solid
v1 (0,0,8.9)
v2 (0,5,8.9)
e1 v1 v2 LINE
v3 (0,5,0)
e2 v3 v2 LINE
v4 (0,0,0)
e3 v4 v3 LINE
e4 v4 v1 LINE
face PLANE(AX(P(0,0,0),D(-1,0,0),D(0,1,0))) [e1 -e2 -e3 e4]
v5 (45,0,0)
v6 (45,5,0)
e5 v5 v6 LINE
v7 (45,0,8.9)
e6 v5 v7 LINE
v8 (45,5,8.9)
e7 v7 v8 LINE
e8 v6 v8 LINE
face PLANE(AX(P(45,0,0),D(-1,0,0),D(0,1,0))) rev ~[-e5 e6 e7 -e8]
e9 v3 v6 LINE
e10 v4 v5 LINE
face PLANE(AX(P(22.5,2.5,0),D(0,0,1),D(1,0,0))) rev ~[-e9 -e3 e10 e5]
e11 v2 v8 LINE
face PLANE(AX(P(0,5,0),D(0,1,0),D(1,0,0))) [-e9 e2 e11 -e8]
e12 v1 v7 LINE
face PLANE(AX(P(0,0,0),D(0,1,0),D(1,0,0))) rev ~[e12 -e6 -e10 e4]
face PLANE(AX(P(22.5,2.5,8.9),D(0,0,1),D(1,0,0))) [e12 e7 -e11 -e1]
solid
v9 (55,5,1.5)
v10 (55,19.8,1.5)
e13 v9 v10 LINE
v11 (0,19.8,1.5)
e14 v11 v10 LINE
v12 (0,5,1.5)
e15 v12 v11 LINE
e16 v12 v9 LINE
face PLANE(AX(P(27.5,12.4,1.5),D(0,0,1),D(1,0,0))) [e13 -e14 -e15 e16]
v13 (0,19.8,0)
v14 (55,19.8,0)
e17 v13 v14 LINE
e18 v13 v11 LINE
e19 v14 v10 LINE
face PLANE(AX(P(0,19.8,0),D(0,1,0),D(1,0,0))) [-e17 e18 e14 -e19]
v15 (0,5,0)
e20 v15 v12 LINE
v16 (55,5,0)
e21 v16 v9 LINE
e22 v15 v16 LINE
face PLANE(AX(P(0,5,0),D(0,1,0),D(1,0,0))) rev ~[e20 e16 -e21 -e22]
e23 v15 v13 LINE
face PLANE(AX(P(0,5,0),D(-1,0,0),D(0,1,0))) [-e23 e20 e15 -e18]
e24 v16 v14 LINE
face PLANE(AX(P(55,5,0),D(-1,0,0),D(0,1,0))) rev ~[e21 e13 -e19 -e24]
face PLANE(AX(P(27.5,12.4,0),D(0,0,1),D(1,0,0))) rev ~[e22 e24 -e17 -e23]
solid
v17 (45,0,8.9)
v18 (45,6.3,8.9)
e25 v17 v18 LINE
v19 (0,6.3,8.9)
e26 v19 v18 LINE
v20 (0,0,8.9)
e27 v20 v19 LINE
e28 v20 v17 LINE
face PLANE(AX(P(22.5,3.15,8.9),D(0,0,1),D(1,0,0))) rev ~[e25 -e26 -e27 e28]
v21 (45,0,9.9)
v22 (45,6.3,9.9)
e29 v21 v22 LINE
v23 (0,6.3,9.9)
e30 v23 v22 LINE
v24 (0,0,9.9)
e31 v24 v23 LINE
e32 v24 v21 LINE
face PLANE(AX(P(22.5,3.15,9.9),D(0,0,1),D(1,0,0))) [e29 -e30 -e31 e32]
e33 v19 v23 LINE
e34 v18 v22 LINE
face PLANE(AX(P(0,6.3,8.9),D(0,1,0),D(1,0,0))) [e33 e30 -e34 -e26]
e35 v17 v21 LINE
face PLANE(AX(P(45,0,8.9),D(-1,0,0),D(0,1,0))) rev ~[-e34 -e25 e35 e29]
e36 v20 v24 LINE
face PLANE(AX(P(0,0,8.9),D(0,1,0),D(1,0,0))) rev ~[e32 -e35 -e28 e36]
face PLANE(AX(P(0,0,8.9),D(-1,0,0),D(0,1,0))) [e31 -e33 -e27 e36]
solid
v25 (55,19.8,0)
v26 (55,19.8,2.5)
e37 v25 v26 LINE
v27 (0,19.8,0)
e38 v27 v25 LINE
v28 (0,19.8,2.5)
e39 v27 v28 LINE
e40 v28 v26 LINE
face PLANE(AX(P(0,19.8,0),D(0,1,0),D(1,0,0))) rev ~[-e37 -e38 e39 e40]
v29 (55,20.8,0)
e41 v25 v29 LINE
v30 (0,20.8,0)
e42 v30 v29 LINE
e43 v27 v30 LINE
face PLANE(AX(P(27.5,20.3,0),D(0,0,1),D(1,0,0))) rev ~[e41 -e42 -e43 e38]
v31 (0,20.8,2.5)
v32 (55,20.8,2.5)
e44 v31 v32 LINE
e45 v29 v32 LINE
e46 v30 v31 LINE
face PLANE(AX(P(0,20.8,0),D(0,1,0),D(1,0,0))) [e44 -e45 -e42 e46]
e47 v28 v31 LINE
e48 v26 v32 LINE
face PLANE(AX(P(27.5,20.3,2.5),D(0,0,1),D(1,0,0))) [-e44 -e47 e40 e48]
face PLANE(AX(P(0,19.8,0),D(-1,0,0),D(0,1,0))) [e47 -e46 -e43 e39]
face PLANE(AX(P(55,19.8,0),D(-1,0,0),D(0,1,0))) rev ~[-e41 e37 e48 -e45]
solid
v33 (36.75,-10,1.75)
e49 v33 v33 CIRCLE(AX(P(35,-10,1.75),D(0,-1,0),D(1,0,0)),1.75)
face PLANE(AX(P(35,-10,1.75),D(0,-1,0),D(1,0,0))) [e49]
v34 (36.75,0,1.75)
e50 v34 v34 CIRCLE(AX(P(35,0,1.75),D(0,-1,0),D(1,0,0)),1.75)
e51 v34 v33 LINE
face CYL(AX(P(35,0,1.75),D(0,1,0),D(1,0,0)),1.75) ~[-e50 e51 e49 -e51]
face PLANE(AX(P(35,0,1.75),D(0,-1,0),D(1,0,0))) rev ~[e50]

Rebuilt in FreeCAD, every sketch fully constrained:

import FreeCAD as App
import Part
import Sketcher
Q = App.Units.Quantity


def add_polygon(sketch, points):
    """Adds a closed chain of lines whose ends are joined by coincident constraints."""
    first, n = sketch.GeometryCount, len(points)
    for a, b in zip(points, points[1:] + points[:1]):
        sketch.addGeometry(Part.LineSegment(App.Vector(*a, 0), App.Vector(*b, 0)), False)
    for i in range(n):
        sketch.addConstraint(Sketcher.Constraint("Coincident", first + i, 2, first + (i + 1) % n, 1))

doc = App.newDocument("Part")
body = doc.addObject("PartDesign::Body", "Body")

# Sketch on XY plane
sketch1 = body.newObject("Sketcher::SketchObject", "Sketch")
sketch1.AttachmentSupport = (doc.getObject("XY_Plane"), [""])
sketch1.MapMode = "FlatFace"
add_polygon(sketch1, [(0, 5), (0, 0), (45, 0), (45, 5)])  # lines 0-3
sketch1.addConstraint([
    Sketcher.Constraint("Vertical", 0),
    Sketcher.Constraint("Horizontal", 1),
    Sketcher.Constraint("Vertical", 2),
    Sketcher.Constraint("Horizontal", 3),
    Sketcher.Constraint("Coincident", 0, 2, -1, 1),
    Sketcher.Constraint("DistanceX", 1, 1, 1, 2, Q("45 mm")),
    Sketcher.Constraint("DistanceY", 0, 2, 0, 1, Q("5 mm")),
])
pad1 = body.newObject("PartDesign::Pad", "Pad")
pad1.Profile = sketch1
pad1.Length = 8.9
body2 = doc.addObject("PartDesign::Body", "Body001")

# Sketch on XY plane
sketch2 = body2.newObject("Sketcher::SketchObject", "Sketch001")
sketch2.AttachmentSupport = (doc.getObject("XY_Plane001"), [""])
sketch2.MapMode = "FlatFace"
add_polygon(sketch2, [(0, 20), (0, 5), (55, 5), (55, 20)])  # lines 0-3
sketch2.addConstraint([
    Sketcher.Constraint("Vertical", 0),
    Sketcher.Constraint("Horizontal", 1),
    Sketcher.Constraint("Vertical", 2),
    Sketcher.Constraint("Horizontal", 3),
    Sketcher.Constraint("PointOnObject", 0, 2, -2),
    Sketcher.Constraint("DistanceX", 1, 1, 1, 2, Q("55 mm")),
    Sketcher.Constraint("DistanceY", 0, 2, 0, 1, Q("14.8 mm")),
    Sketcher.Constraint("DistanceY", -1, 1, 0, 2, Q("5 mm")),
])
pad2 = body2.newObject("PartDesign::Pad", "Pad001")
pad2.Profile = sketch2
pad2.Length = 1.5
body3 = doc.addObject("PartDesign::Body", "Body002")

# Sketch on XY plane
sketch3 = body3.newObject("Sketcher::SketchObject", "Sketch002")
sketch3.AttachmentSupport = (doc.getObject("XY_Plane002"), [""])
sketch3.MapMode = "FlatFace"
add_polygon(sketch3, [(0, 20.8), (0, 19.8), (55, 19.8), (55, 20.8)])  # lines 0-3
sketch3.addConstraint([
    Sketcher.Constraint("Vertical", 0),
    Sketcher.Constraint("Horizontal", 1),
    Sketcher.Constraint("Vertical", 2),
    Sketcher.Constraint("Horizontal", 3),
    Sketcher.Constraint("PointOnObject", 0, 2, -2),
    Sketcher.Constraint("DistanceX", 1, 1, 1, 2, Q("55 mm")),
    Sketcher.Constraint("DistanceY", 0, 2, 0, 1, Q("1 mm")),
    Sketcher.Constraint("DistanceY", -1, 1, 0, 2, Q("19.8 mm")),
])
pad3 = body3.newObject("PartDesign::Pad", "Pad002")
pad3.Profile = sketch3
pad3.Length = 2.5
body4 = doc.addObject("PartDesign::Body", "Body003")

# Sketch on XY plane
sketch4 = body4.newObject("Sketcher::SketchObject", "Sketch003")
sketch4.AttachmentSupport = (doc.getObject("XY_Plane003"), [""])
sketch4.MapMode = "FlatFace"
sketch4.AttachmentOffset = App.Placement(App.Vector(0, 0, 8.9), App.Rotation())
add_polygon(sketch4, [(0, 6), (0, 0), (45, 0), (45, 6)])  # lines 0-3
sketch4.addConstraint([
    Sketcher.Constraint("Vertical", 0),
    Sketcher.Constraint("Horizontal", 1),
    Sketcher.Constraint("Vertical", 2),
    Sketcher.Constraint("Horizontal", 3),
    Sketcher.Constraint("Coincident", 0, 2, -1, 1),
    Sketcher.Constraint("DistanceX", 1, 1, 1, 2, Q("45 mm")),
    Sketcher.Constraint("DistanceY", 0, 2, 0, 1, Q("6.3 mm")),
])
pad4 = body4.newObject("PartDesign::Pad", "Pad003")
pad4.Profile = sketch4
pad4.Length = 1
body5 = doc.addObject("PartDesign::Body", "Body004")

# Sketch on XZ plane
sketch5 = body5.newObject("Sketcher::SketchObject", "Sketch004")
sketch5.AttachmentSupport = (doc.getObject("XZ_Plane004"), [""])
sketch5.MapMode = "FlatFace"
sketch5.addGeometry(Part.Circle(App.Vector(35, 1.8, 0), App.Vector(0, 0, 1), 1.8), False)
sketch5.addConstraint([
    Sketcher.Constraint("Diameter", 0, Q("3.5 mm")),
    Sketcher.Constraint("DistanceX", -1, 1, 0, 3, Q("35 mm")),
    Sketcher.Constraint("DistanceY", -1, 1, 0, 3, Q("1.75 mm")),
])
pad5 = body5.newObject("PartDesign::Pad", "Pad004")
pad5.Profile = sketch5
pad5.Length = 10

doc.recompute()
